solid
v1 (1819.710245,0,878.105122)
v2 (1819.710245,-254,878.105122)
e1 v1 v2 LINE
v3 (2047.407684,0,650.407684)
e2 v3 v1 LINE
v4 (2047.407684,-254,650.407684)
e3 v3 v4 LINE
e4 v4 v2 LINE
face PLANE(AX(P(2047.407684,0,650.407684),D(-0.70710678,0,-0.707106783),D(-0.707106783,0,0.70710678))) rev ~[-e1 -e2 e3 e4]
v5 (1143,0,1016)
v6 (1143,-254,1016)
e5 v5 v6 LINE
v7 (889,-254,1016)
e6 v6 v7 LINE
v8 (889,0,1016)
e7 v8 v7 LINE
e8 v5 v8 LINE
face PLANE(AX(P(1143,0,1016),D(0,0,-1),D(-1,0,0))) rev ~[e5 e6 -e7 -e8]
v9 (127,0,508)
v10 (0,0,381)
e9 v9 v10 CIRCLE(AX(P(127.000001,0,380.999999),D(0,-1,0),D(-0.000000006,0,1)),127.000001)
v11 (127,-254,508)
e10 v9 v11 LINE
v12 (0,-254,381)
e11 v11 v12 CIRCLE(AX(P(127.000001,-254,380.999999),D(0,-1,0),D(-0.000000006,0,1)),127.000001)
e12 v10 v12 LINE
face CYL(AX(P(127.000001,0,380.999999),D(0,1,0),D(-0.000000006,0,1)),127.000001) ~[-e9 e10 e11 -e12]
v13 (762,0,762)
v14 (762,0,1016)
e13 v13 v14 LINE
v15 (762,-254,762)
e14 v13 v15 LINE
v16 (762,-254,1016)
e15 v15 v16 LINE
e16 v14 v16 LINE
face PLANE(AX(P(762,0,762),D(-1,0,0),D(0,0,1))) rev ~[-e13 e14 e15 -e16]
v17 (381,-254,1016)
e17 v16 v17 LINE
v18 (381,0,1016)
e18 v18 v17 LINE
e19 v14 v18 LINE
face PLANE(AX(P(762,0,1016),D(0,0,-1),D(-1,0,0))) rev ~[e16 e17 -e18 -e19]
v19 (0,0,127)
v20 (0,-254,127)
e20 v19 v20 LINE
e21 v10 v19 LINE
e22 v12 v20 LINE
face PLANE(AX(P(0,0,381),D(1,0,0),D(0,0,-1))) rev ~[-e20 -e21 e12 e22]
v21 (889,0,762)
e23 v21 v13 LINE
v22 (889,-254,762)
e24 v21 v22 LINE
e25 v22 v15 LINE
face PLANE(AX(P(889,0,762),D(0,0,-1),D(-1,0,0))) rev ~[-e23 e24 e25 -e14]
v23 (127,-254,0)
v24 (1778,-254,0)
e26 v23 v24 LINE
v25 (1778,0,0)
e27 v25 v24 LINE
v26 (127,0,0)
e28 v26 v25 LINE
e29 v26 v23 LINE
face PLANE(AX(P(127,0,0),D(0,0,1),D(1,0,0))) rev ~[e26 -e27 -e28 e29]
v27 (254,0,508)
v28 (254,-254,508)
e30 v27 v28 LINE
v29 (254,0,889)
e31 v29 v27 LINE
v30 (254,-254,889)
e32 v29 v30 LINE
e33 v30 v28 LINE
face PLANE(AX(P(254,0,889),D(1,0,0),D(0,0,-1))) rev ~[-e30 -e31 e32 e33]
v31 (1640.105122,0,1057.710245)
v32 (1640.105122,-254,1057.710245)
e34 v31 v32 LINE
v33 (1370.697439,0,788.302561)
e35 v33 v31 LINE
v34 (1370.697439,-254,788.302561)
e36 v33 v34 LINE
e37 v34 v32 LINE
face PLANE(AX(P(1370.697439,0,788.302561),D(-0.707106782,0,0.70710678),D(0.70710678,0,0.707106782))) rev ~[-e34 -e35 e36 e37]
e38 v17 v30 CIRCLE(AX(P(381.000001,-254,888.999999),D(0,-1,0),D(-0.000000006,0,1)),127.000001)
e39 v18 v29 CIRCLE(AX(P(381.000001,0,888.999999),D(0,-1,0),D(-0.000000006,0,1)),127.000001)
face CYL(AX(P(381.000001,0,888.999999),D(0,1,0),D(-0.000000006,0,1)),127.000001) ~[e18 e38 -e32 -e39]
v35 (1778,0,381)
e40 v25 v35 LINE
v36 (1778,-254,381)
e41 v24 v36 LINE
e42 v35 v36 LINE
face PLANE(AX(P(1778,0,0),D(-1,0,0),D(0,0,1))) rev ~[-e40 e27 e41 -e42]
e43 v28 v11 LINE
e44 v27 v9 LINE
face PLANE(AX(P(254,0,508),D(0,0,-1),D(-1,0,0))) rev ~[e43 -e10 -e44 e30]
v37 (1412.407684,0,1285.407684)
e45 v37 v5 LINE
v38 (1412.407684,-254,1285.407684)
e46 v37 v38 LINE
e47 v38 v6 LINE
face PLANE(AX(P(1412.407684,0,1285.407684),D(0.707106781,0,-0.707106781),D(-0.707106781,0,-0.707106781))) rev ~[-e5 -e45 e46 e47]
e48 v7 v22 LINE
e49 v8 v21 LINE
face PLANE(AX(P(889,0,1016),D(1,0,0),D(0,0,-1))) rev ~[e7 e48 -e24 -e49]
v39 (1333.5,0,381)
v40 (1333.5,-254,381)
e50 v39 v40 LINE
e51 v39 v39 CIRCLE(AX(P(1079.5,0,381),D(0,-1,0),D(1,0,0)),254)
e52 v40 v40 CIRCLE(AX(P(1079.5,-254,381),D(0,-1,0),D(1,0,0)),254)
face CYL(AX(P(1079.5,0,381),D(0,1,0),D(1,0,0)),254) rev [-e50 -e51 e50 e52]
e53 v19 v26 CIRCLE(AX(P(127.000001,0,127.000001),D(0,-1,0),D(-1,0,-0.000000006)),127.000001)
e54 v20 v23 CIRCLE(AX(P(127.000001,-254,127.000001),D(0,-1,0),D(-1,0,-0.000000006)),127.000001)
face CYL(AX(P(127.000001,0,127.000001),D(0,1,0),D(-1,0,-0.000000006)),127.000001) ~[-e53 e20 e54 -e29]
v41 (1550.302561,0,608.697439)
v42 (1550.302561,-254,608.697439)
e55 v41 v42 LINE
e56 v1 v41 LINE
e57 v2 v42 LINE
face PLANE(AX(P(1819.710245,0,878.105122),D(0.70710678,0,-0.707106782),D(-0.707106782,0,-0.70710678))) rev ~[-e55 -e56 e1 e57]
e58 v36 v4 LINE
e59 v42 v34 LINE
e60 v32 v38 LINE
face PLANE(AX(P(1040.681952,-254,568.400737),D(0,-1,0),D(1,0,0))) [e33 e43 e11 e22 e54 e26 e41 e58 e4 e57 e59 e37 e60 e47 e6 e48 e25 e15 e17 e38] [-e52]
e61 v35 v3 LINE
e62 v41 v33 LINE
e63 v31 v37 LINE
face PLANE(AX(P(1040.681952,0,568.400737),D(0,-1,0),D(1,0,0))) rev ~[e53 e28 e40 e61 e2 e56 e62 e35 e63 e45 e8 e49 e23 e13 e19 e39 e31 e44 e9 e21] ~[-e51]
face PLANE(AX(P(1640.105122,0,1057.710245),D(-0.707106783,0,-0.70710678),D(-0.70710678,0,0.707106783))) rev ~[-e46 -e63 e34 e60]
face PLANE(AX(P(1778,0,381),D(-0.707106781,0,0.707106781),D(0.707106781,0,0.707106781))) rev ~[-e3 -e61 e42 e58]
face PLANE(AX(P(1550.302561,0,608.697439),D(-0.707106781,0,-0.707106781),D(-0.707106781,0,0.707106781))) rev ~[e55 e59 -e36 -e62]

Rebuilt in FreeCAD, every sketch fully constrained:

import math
import FreeCAD as App
import Part
import Sketcher
from FreeCAD import Vector
Q = App.Units.Quantity

doc = App.newDocument("Part")
body = doc.addObject("PartDesign::Body", "Body")

sketch1 = body.newObject("Sketcher::SketchObject", "Sketch")
sketch1.AttachmentSupport = (doc.getObject("XZ_Plane"), [""])
sketch1.MapMode = "FlatFace"
sketch1.addGeometry(Part.ArcOfCircle(Part.Circle(Vector(127, 127, 0), Vector(0, 0, 1), 127), math.radians(-180), math.radians(-90)), False)
sketch1.addGeometry(Part.LineSegment(Vector(127, 0, 0), Vector(1778, 0, 0)), False)
sketch1.addGeometry(Part.LineSegment(Vector(1778, 0, 0), Vector(1778, 381, 0)), False)
sketch1.addGeometry(Part.LineSegment(Vector(1778, 381, 0), Vector(2047, 650, 0)), False)
sketch1.addGeometry(Part.LineSegment(Vector(2047, 650, 0), Vector(1820, 878, 0)), False)
sketch1.addGeometry(Part.LineSegment(Vector(1820, 878, 0), Vector(1550, 609, 0)), False)
sketch1.addGeometry(Part.LineSegment(Vector(1550, 609, 0), Vector(1371, 788, 0)), False)
sketch1.addGeometry(Part.LineSegment(Vector(1371, 788, 0), Vector(1640, 1058, 0)), False)
sketch1.addGeometry(Part.LineSegment(Vector(1640, 1058, 0), Vector(1412, 1285, 0)), False)
sketch1.addGeometry(Part.LineSegment(Vector(1412, 1285, 0), Vector(1143, 1016, 0)), False)
sketch1.addGeometry(Part.LineSegment(Vector(1143, 1016, 0), Vector(889, 1016, 0)), False)
sketch1.addGeometry(Part.LineSegment(Vector(889, 1016, 0), Vector(889, 762, 0)), False)
sketch1.addGeometry(Part.LineSegment(Vector(889, 762, 0), Vector(762, 762, 0)), False)
sketch1.addGeometry(Part.LineSegment(Vector(762, 762, 0), Vector(762, 1016, 0)), False)
sketch1.addGeometry(Part.LineSegment(Vector(762, 1016, 0), Vector(381, 1016, 0)), False)
sketch1.addGeometry(Part.ArcOfCircle(Part.Circle(Vector(381, 889, 0), Vector(0, 0, 1), 127), math.radians(90), math.radians(180)), False)
sketch1.addGeometry(Part.LineSegment(Vector(254, 889, 0), Vector(254, 508, 0)), False)
sketch1.addGeometry(Part.LineSegment(Vector(254, 508, 0), Vector(127, 508, 0)), False)
sketch1.addGeometry(Part.ArcOfCircle(Part.Circle(Vector(127, 381, 0), Vector(0, 0, 1), 127), math.radians(90), math.radians(180)), False)
sketch1.addGeometry(Part.LineSegment(Vector(0, 381, 0), Vector(0, 127, 0)), False)
sketch1.addGeometry(Part.Circle(Vector(1080, 381, 0), Vector(0, 0, 1), 254), False)
sketch1.addConstraint(Sketcher.Constraint("Tangent", 0, 2, 1, 1))
sketch1.addConstraint(Sketcher.Constraint("Coincident", 1, 2, 2, 1))
sketch1.addConstraint(Sketcher.Constraint("Coincident", 2, 2, 3, 1))
sketch1.addConstraint(Sketcher.Constraint("Coincident", 3, 2, 4, 1))
sketch1.addConstraint(Sketcher.Constraint("Coincident", 4, 2, 5, 1))
sketch1.addConstraint(Sketcher.Constraint("Coincident", 5, 2, 6, 1))
sketch1.addConstraint(Sketcher.Constraint("Coincident", 6, 2, 7, 1))
sketch1.addConstraint(Sketcher.Constraint("Coincident", 7, 2, 8, 1))
sketch1.addConstraint(Sketcher.Constraint("Coincident", 8, 2, 9, 1))
sketch1.addConstraint(Sketcher.Constraint("Coincident", 9, 2, 10, 1))
sketch1.addConstraint(Sketcher.Constraint("Coincident", 10, 2, 11, 1))
sketch1.addConstraint(Sketcher.Constraint("Coincident", 11, 2, 12, 1))
sketch1.addConstraint(Sketcher.Constraint("Coincident", 12, 2, 13, 1))
sketch1.addConstraint(Sketcher.Constraint("Coincident", 13, 2, 14, 1))
sketch1.addConstraint(Sketcher.Constraint("Tangent", 14, 2, 15, 1))
sketch1.addConstraint(Sketcher.Constraint("Tangent", 15, 2, 16, 1))
sketch1.addConstraint(Sketcher.Constraint("Coincident", 16, 2, 17, 1))
sketch1.addConstraint(Sketcher.Constraint("Tangent", 17, 2, 18, 1))
sketch1.addConstraint(Sketcher.Constraint("Tangent", 18, 2, 19, 1))
sketch1.addConstraint(Sketcher.Constraint("Tangent", 19, 2, 0, 1))
sketch1.addConstraint(Sketcher.Constraint("Horizontal", 1))
sketch1.addConstraint(Sketcher.Constraint("Vertical", 2))
sketch1.addConstraint(Sketcher.Constraint("Horizontal", 10))
sketch1.addConstraint(Sketcher.Constraint("Vertical", 11))
sketch1.addConstraint(Sketcher.Constraint("Horizontal", 12))
sketch1.addConstraint(Sketcher.Constraint("Vertical", 13))
sketch1.addConstraint(Sketcher.Constraint("Horizontal", 14))
sketch1.addConstraint(Sketcher.Constraint("Vertical", 16))
sketch1.addConstraint(Sketcher.Constraint("Horizontal", 17))
sketch1.addConstraint(Sketcher.Constraint("Vertical", 19))
sketch1.addConstraint(Sketcher.Constraint("Equal", 0, 15))
sketch1.addConstraint(Sketcher.Constraint("Equal", 15, 18))
sketch1.addConstraint(Sketcher.Constraint("PointOnObject", 0, 2, -1))
sketch1.addConstraint(Sketcher.Constraint("PointOnObject", 18, 2, -2))
sketch1.addConstraint(Sketcher.Constraint("Perpendicular", 3, 4))
sketch1.addConstraint(Sketcher.Constraint("Perpendicular", 4, 5))
sketch1.addConstraint(Sketcher.Constraint("Perpendicular", 5, 6))
sketch1.addConstraint(Sketcher.Constraint("Perpendicular", 6, 7))
sketch1.addConstraint(Sketcher.Constraint("Perpendicular", 7, 8))
sketch1.addConstraint(Sketcher.Constraint("Perpendicular", 8, 9))
sketch1.addConstraint(Sketcher.Constraint("Horizontal", 18, 3, 20, 3))
sketch1.addConstraint(Sketcher.Constraint("Horizontal", 20, 3, 2, 2))
sketch1.addConstraint(Sketcher.Constraint("Horizontal", 10, 2, 13, 2))
sketch1.addConstraint(Sketcher.Constraint("Equal", 12, 17))
sketch1.addConstraint(Sketcher.Constraint("Equal", 14, 2))
sketch1.addConstraint(Sketcher.Constraint("Equal", 10, 11))
sketch1.addConstraint(Sketcher.Constraint("Equal", 2, 16))
sketch1.addConstraint(Sketcher.Constraint("Equal", 13, 19))
sketch1.addConstraint(Sketcher.Constraint("Equal", 3, 5))
sketch1.addConstraint(Sketcher.Constraint("Equal", 5, 7))
sketch1.addConstraint(Sketcher.Constraint("Equal", 4, 8))
sketch1.addConstraint(Sketcher.Constraint("Equal", 7, 9))
sketch1.addConstraint(Sketcher.Constraint("Diameter", 20, Q("20 in")))
sketch1.addConstraint(Sketcher.Constraint("Radius", 0, Q("5 in")))
sketch1.addConstraint(Sketcher.Constraint("DistanceX", 1, 1, 1, 2, Q("65 in")))
sketch1.addConstraint(Sketcher.Constraint("DistanceX", 10, 2, 10, 1, Q("10 in")))
sketch1.addConstraint(Sketcher.Constraint("DistanceX", 12, 2, 12, 1, Q("5 in")))
sketch1.addConstraint(Sketcher.Constraint("Distance", 3, Q("15 in")))
sketch1.addConstraint(Sketcher.Constraint("Distance", 6, Q("10 in")))
sketch1.addConstraint(Sketcher.Constraint("DistanceX", -1, 1, 20, 3, Q("42.5 in")))
pad1 = body.newObject("PartDesign::Pad", "Pad")
pad1.Profile = sketch1
pad1.Length = Q("10 in")

doc.recompute()
